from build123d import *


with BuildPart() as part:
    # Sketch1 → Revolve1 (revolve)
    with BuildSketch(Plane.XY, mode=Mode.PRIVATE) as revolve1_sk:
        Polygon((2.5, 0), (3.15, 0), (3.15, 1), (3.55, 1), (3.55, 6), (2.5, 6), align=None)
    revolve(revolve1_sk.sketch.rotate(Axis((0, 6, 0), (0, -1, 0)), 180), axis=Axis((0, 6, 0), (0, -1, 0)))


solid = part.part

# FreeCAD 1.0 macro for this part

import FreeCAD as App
import Part
import Sketcher
Q = App.Units.Quantity

doc = App.newDocument("Part")
params = doc.addObject("Spreadsheet::Sheet", "Params")
for row, (alias, value) in enumerate([
    ("sketch1_height", "1 mm"),
    ("sketch1_height2", "5 mm"),
    ("sketch1_width", "0.4 mm"),
    ("sketch1_width2", "0.65 mm"),
    ("revolution_angle", "360 deg"),
], start=1):
    params.set(f"A{row}", alias)
    params.set(f"B{row}", "=" + value)
    params.setAlias(f"B{row}", alias)

body = doc.addObject("PartDesign::Body", "Body")

# Sketch on XY plane
sketch1 = doc.addObject("Sketcher::SketchObject", "Sketch")
body.addObject(sketch1)
sketch1.AttachmentSupport = (doc.XY_Plane, [""])
sketch1.MapMode = "FlatFace"
sketch1.addGeometry(Part.LineSegment(App.Vector(2.5, 0, 0), App.Vector(3.15, 0, 0)), False)
sketch1.addGeometry(Part.LineSegment(App.Vector(3.15, 0, 0), App.Vector(3.15, 1, 0)), False)
sketch1.addGeometry(Part.LineSegment(App.Vector(3.15, 1, 0), App.Vector(3.55, 1, 0)), False)
sketch1.addGeometry(Part.LineSegment(App.Vector(3.55, 1, 0), App.Vector(3.55, 6, 0)), False)
sketch1.addGeometry(Part.LineSegment(App.Vector(3.55, 6, 0), App.Vector(2.5, 6, 0)), False)
sketch1.addGeometry(Part.LineSegment(App.Vector(2.5, 6, 0), App.Vector(2.5, 0, 0)), False)
sketch1.addConstraint(Sketcher.Constraint("Coincident", 0, 2, 1, 1))
sketch1.addConstraint(Sketcher.Constraint("Coincident", 1, 2, 2, 1))
sketch1.addConstraint(Sketcher.Constraint("Coincident", 2, 2, 3, 1))
sketch1.addConstraint(Sketcher.Constraint("Coincident", 3, 2, 4, 1))
sketch1.addConstraint(Sketcher.Constraint("Coincident", 4, 2, 5, 1))
sketch1.addConstraint(Sketcher.Constraint("Coincident", 5, 2, 0, 1))
sketch1.addConstraint(Sketcher.Constraint("Horizontal", 0))
sketch1.addConstraint(Sketcher.Constraint("Vertical", 1))
sketch1.addConstraint(Sketcher.Constraint("Horizontal", 2))
sketch1.addConstraint(Sketcher.Constraint("Vertical", 3))
sketch1.addConstraint(Sketcher.Constraint("Horizontal", 4))
sketch1.addConstraint(Sketcher.Constraint("Vertical", 5))
sketch1.addConstraint(Sketcher.Constraint("PointOnObject", 0, 2, -1))
sketch1.addConstraint(Sketcher.Constraint("DistanceY", 1, 1, 1, 2, Q("1 mm")))
sketch1.addConstraint(Sketcher.Constraint("DistanceY", 3, 1, 3, 2, Q("5 mm")))
sketch1.addConstraint(Sketcher.Constraint("DistanceX", 2, 1, 2, 2, Q("0.4 mm")))
sketch1.addConstraint(Sketcher.Constraint("DistanceX", 0, 1, 0, 2, Q("0.65 mm")))
sketch1.addConstraint(Sketcher.Constraint("DistanceX", -1, 1, 4, 2, Q("2.5 mm")))
sketch1.setExpression("Constraints[13]", "Params.sketch1_height")
sketch1.setExpression("Constraints[14]", "Params.sketch1_height2")
sketch1.setExpression("Constraints[15]", "Params.sketch1_width")
sketch1.setExpression("Constraints[16]", "Params.sketch1_width2")
revolution = doc.addObject("PartDesign::Revolution", "Revolution")
body.addObject(revolution)
revolution.Profile = sketch1
revolution.ReferenceAxis = (sketch1, ["V_Axis"])
revolution.setExpression("Angle", "Params.revolution_angle")

doc.recompute()
